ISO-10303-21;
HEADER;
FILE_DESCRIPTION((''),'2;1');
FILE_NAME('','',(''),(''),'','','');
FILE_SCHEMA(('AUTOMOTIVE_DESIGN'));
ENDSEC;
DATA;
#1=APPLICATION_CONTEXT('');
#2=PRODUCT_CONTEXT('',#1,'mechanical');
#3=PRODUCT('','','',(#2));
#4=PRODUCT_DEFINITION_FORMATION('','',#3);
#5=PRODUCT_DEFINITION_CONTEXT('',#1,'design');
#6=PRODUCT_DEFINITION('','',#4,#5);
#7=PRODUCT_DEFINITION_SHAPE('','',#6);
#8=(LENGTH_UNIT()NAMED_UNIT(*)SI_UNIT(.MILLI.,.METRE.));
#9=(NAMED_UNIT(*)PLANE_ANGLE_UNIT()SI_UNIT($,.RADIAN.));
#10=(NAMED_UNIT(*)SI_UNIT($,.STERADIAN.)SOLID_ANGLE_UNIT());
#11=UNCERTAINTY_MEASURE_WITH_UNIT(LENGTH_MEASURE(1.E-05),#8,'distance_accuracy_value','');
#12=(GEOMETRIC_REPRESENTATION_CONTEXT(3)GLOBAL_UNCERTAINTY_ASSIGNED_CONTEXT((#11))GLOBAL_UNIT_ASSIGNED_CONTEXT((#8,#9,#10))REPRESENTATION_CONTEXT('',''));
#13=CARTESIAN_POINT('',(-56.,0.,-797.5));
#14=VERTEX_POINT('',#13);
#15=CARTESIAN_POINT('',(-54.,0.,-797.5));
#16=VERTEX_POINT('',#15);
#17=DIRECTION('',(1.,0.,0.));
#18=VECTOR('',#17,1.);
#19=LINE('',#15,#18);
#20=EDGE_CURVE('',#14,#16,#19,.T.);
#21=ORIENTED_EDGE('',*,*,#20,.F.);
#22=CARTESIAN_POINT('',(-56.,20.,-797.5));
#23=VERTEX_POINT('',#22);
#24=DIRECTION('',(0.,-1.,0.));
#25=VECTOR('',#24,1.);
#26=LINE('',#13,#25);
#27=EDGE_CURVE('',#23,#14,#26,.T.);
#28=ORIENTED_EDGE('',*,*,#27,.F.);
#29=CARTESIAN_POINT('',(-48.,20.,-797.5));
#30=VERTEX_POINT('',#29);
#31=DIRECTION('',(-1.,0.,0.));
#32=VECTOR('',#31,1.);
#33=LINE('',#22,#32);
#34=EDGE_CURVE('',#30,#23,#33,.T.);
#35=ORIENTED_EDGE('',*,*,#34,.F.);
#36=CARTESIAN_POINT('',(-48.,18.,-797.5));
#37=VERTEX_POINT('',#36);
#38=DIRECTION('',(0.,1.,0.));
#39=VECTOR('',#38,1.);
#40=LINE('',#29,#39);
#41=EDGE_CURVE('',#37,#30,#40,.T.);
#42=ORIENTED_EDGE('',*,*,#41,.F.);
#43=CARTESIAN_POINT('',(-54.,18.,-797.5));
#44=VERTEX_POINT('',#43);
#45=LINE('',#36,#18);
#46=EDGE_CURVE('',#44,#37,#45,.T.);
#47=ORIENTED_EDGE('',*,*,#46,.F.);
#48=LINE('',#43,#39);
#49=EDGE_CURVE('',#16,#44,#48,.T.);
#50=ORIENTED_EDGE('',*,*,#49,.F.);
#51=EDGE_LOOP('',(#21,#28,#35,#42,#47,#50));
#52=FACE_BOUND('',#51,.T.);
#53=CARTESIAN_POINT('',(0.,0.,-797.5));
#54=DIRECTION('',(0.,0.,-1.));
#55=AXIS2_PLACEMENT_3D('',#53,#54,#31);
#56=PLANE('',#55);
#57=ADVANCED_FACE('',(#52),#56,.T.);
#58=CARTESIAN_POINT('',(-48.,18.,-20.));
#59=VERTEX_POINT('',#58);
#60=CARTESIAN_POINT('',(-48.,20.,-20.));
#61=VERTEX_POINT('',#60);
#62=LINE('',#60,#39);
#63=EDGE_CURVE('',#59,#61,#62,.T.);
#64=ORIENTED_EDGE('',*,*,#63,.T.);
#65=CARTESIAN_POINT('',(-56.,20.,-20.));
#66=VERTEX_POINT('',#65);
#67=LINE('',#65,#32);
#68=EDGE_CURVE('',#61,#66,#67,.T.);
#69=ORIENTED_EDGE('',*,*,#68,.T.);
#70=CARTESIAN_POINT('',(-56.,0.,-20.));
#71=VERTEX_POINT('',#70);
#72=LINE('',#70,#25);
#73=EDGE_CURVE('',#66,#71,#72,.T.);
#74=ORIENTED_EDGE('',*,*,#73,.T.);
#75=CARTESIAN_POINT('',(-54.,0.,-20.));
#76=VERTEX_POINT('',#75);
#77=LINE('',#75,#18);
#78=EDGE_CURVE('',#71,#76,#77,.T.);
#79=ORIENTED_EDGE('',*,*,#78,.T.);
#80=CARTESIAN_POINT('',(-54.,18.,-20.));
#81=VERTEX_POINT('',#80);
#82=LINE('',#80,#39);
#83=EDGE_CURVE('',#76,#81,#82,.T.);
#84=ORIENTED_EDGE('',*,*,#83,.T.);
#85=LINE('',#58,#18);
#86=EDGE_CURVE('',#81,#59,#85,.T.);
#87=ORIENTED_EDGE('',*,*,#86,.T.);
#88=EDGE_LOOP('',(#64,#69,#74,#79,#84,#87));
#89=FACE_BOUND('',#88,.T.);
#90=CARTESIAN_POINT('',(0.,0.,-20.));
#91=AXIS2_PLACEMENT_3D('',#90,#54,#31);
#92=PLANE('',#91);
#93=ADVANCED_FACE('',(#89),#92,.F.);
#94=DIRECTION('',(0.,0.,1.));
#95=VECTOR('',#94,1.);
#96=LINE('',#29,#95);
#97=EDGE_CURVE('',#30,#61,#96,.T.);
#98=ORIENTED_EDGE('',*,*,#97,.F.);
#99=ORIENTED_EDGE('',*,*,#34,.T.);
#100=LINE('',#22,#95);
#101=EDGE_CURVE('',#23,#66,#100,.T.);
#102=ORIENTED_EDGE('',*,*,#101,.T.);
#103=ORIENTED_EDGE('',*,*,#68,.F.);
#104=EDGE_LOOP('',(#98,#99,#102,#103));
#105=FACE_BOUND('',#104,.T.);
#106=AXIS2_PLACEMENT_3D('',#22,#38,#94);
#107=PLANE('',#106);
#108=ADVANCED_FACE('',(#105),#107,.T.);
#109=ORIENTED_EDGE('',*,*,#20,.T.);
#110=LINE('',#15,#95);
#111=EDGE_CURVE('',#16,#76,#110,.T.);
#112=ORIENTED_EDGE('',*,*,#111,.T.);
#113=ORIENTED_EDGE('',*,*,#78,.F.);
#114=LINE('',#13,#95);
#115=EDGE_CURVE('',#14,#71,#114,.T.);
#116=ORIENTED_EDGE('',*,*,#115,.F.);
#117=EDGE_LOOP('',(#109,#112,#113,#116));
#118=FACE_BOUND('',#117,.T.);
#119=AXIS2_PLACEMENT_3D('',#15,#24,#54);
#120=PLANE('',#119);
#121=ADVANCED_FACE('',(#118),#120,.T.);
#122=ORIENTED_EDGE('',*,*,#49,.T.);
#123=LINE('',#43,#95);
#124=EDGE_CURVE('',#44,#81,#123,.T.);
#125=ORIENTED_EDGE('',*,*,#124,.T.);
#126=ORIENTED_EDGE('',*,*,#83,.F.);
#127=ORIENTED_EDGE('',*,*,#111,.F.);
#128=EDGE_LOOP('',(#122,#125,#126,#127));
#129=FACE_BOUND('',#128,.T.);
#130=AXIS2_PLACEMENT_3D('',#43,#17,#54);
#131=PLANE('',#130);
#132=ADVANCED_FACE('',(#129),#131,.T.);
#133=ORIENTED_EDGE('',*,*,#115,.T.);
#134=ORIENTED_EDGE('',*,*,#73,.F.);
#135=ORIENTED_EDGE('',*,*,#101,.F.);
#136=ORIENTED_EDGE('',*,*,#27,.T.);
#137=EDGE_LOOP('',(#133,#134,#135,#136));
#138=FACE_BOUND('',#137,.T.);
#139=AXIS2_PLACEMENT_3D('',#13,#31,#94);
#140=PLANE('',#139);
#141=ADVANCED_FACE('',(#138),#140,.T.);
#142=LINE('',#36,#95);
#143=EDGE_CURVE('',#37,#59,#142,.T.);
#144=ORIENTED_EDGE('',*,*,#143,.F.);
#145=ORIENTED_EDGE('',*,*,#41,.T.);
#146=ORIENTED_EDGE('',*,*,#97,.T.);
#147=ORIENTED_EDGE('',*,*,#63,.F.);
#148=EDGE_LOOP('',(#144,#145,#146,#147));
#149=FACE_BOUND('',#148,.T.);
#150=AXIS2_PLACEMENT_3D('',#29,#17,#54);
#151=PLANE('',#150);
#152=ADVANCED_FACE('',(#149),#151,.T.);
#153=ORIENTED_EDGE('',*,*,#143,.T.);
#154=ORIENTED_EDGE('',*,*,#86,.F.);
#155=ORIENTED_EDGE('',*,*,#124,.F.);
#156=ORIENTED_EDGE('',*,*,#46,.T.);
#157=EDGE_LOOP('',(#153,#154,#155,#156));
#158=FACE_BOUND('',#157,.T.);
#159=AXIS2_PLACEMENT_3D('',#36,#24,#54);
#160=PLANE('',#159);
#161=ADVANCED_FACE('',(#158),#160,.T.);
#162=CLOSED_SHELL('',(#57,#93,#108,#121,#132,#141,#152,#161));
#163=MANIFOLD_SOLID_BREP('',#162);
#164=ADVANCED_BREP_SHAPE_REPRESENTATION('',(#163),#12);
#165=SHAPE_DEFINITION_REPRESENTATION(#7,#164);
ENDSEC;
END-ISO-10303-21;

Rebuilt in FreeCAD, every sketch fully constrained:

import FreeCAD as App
import Part
import Sketcher
Q = App.Units.Quantity

doc = App.newDocument("Part")
body = doc.addObject("PartDesign::Body", "Body")

# Sketch on XY plane
sketch1 = body.newObject("Sketcher::SketchObject", "Sketch")
sketch1.AttachmentSupport = (doc.getObject("XY_Plane"), [""])
sketch1.MapMode = "FlatFace"
sketch1.AttachmentOffset = App.Placement(App.Vector(0, 0, -20), App.Rotation())
sketch1.addGeometry([
    Part.LineSegment(App.Vector(-56, 0, 0), App.Vector(-54, 0, 0)),  # 0
    Part.LineSegment(App.Vector(-54, 0, 0), App.Vector(-54, 18, 0)),  # 1
    Part.LineSegment(App.Vector(-54, 18, 0), App.Vector(-48, 18, 0)),  # 2
    Part.LineSegment(App.Vector(-48, 18, 0), App.Vector(-48, 20, 0)),  # 3
    Part.LineSegment(App.Vector(-48, 20, 0), App.Vector(-56, 20, 0)),  # 4
    Part.LineSegment(App.Vector(-56, 20, 0), App.Vector(-56, 0, 0)),  # 5
], False)
sketch1.addConstraint([
    Sketcher.Constraint("Coincident", 0, 2, 1, 1),
    Sketcher.Constraint("Coincident", 1, 2, 2, 1),
    Sketcher.Constraint("Coincident", 2, 2, 3, 1),
    Sketcher.Constraint("Coincident", 3, 2, 4, 1),
    Sketcher.Constraint("Coincident", 4, 2, 5, 1),
    Sketcher.Constraint("Coincident", 5, 2, 0, 1),
    Sketcher.Constraint("Horizontal", 0),
    Sketcher.Constraint("Vertical", 1),
    Sketcher.Constraint("Horizontal", 2),
    Sketcher.Constraint("Vertical", 3),
    Sketcher.Constraint("Horizontal", 4),
    Sketcher.Constraint("Vertical", 5),
    Sketcher.Constraint("PointOnObject", 0, 2, -1),
    Sketcher.Constraint("Equal", 0, 3),
    Sketcher.Constraint("DistanceX", 0, 1, 0, 2, Q("2 mm")),
    Sketcher.Constraint("DistanceX", 2, 1, 2, 2, Q("6 mm")),
    Sketcher.Constraint("DistanceY", 1, 1, 1, 2, Q("18 mm")),
    Sketcher.Constraint("DistanceX", 0, 2, -1, 1, Q("54 mm")),
])
pad1 = body.newObject("PartDesign::Pad", "Pad")
pad1.Profile = sketch1
pad1.Length = 777.5
pad1.Reversed = True

doc.recompute()
